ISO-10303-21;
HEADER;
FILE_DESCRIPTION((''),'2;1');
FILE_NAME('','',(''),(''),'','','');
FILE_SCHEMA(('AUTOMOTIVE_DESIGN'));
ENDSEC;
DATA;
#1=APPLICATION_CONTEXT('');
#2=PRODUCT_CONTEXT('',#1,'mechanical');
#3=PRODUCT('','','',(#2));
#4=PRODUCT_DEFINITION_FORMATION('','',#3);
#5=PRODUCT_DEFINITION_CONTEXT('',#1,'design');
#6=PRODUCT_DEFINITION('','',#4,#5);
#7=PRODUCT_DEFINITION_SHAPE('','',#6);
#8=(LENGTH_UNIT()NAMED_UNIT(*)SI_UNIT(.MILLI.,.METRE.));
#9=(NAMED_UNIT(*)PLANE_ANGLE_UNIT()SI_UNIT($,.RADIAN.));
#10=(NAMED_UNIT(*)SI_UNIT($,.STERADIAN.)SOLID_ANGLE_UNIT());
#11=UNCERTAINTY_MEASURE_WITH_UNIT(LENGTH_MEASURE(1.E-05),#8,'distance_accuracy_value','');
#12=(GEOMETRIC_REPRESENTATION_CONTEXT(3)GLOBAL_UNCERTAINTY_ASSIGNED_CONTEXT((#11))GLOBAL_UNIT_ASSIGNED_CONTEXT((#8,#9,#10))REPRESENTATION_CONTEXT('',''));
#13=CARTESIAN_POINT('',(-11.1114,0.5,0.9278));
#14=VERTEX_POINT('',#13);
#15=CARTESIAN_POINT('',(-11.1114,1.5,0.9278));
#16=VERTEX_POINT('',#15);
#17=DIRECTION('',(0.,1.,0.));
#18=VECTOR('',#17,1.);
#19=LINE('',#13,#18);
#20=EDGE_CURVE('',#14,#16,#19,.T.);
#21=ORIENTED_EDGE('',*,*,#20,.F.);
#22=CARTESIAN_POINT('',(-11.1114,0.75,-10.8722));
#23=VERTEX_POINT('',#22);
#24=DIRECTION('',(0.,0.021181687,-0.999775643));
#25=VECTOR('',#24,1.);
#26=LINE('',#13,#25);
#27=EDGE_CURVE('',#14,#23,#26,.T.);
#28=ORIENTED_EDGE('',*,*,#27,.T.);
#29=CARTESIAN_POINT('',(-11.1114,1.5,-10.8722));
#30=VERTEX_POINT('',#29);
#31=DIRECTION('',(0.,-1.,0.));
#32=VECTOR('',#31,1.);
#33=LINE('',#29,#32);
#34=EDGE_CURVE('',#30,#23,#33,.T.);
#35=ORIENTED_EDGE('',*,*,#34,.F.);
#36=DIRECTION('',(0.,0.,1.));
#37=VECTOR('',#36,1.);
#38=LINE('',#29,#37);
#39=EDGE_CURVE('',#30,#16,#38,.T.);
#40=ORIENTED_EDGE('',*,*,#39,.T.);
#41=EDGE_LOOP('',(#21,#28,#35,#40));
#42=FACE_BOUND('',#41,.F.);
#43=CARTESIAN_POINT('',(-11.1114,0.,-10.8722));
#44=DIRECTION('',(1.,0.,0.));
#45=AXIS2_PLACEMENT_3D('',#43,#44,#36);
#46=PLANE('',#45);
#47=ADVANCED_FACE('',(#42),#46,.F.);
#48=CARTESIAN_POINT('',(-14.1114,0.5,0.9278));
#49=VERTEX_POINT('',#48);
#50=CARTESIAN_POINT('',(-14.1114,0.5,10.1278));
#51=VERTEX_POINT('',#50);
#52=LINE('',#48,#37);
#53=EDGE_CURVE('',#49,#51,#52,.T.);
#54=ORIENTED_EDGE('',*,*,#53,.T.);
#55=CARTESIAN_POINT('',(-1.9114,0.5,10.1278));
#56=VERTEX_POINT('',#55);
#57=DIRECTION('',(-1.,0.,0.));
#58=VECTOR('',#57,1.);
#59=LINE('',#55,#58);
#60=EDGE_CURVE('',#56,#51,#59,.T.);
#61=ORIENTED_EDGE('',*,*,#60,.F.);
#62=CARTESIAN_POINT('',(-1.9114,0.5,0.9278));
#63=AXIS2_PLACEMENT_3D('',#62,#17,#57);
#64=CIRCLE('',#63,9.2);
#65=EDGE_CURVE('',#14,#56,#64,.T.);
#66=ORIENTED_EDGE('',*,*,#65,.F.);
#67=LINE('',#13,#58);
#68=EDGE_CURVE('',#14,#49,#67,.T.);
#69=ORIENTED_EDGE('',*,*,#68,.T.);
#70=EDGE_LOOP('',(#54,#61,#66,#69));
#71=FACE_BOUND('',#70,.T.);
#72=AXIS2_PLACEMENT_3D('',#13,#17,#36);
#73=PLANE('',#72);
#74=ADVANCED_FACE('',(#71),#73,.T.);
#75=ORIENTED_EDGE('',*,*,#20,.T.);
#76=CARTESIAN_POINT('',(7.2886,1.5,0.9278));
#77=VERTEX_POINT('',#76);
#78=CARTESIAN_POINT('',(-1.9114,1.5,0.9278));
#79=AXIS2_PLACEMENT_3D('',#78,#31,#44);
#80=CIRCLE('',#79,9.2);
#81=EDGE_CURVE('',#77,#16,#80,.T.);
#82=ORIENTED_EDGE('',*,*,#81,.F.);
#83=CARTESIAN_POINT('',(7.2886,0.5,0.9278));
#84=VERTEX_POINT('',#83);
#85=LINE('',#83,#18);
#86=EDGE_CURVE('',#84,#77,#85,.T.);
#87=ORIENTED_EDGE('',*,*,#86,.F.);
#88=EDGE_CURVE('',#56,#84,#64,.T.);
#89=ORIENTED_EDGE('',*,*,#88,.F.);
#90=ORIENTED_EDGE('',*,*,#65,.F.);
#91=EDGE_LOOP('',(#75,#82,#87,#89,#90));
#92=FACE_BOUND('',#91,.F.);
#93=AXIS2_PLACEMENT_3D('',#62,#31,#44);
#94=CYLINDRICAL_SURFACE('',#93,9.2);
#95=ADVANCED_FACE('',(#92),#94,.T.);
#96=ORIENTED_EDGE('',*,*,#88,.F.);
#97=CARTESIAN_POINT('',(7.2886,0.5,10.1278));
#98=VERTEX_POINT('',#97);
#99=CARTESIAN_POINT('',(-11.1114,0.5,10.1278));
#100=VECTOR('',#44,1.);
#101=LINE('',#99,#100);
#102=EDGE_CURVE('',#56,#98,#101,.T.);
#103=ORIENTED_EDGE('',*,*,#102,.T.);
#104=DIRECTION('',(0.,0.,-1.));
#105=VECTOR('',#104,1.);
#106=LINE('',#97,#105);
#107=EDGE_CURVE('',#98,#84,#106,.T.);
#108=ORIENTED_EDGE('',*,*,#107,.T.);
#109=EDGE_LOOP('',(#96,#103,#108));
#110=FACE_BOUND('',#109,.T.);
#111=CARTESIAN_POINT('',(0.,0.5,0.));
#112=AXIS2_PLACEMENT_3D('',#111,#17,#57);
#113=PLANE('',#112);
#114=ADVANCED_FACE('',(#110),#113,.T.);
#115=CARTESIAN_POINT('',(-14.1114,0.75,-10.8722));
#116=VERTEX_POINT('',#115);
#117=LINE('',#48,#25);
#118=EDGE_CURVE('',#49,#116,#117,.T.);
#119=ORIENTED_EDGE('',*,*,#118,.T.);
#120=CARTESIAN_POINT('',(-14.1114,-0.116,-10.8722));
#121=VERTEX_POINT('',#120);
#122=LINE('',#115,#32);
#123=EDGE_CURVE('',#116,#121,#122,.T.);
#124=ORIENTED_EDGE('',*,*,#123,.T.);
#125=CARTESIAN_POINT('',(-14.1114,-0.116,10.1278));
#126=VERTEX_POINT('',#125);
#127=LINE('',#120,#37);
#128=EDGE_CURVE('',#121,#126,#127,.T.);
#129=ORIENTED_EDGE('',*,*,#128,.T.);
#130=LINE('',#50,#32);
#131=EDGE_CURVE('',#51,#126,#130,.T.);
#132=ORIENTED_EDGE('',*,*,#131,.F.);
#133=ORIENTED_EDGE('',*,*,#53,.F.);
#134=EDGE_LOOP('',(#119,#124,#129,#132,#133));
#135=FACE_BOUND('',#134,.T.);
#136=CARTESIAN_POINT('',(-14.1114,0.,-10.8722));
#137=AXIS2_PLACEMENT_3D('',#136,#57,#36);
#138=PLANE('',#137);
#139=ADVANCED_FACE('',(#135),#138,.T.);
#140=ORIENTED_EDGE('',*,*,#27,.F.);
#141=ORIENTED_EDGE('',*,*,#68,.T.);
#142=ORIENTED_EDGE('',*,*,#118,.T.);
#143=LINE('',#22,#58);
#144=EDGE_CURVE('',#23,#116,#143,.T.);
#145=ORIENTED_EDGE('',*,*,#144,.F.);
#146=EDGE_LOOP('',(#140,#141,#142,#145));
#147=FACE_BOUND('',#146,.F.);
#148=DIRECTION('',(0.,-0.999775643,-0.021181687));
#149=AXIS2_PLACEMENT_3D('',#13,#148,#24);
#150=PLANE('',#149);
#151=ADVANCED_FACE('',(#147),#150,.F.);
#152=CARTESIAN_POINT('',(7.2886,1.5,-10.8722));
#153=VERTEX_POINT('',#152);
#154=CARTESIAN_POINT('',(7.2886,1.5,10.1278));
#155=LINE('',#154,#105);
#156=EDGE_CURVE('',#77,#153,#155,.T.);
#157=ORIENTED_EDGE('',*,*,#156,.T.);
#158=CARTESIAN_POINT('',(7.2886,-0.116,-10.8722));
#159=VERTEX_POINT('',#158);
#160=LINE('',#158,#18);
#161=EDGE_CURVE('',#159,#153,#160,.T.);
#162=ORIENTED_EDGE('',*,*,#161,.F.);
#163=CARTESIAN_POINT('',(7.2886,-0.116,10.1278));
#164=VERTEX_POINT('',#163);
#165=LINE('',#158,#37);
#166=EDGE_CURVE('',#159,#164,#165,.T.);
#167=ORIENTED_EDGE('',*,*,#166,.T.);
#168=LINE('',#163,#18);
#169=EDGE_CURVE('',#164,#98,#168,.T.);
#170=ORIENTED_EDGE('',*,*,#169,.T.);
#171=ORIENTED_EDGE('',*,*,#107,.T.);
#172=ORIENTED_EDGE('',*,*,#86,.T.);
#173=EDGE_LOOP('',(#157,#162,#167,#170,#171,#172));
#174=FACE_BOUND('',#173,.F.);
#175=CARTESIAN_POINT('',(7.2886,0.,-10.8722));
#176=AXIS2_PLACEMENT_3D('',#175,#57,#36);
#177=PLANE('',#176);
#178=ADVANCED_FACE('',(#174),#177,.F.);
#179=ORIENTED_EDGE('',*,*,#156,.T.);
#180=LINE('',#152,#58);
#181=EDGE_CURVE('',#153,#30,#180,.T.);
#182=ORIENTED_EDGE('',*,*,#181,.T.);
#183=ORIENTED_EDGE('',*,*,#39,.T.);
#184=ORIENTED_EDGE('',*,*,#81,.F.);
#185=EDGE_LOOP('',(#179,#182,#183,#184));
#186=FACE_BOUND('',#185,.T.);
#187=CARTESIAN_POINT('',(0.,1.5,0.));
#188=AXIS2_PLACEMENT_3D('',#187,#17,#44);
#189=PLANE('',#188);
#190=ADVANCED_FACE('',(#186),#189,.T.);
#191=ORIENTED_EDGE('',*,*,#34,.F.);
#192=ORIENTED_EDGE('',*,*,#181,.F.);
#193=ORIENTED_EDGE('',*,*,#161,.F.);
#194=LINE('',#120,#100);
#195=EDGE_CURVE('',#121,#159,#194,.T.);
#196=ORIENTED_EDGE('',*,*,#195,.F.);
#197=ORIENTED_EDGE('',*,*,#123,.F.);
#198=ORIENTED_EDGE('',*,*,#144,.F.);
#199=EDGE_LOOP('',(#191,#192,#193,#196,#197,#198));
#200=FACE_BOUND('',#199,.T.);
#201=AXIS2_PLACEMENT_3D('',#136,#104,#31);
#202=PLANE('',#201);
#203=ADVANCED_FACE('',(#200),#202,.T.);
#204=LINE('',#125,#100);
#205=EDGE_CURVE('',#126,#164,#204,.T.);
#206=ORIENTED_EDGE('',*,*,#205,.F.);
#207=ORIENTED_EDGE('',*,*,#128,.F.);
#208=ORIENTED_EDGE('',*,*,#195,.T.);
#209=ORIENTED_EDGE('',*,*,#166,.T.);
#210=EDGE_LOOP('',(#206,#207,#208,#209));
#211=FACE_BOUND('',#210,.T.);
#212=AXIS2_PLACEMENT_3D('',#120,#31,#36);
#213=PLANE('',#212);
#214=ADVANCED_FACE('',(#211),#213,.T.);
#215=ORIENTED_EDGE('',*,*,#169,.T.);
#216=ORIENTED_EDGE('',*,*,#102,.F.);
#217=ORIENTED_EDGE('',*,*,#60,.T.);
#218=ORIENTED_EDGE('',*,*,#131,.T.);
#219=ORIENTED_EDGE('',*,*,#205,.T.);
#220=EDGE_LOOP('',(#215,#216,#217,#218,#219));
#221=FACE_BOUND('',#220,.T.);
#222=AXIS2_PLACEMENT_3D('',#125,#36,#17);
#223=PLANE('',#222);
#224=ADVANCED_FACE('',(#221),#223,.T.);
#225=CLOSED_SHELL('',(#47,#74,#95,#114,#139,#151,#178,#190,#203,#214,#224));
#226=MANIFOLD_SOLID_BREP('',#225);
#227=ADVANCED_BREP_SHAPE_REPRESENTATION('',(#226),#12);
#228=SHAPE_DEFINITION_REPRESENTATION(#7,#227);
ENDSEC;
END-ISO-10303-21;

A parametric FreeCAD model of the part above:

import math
import FreeCAD as App
import Part
import Sketcher
from FreeCAD import Vector

doc = App.newDocument("Part")
body = doc.addObject("PartDesign::Body", "Body")

# Sketch on XZ plane
sketch1 = body.newObject("Sketcher::SketchObject", "Sketch")
sketch1.AttachmentSupport = (doc.getObject("XZ_Plane"), [""])
sketch1.MapMode = "FlatFace"
sketch1.addGeometry(Part.LineSegment(Vector(-11, -11, 0), Vector(-11, 10, 0)), False)
sketch1.addGeometry(Part.LineSegment(Vector(-11, 10, 0), Vector(7, 10, 0)), False)
sketch1.addGeometry(Part.LineSegment(Vector(7, 10, 0), Vector(7, -11, 0)), False)
sketch1.addGeometry(Part.LineSegment(Vector(7, -11, 0), Vector(-11, -11, 0)), False)
sketch1.addConstraint(Sketcher.Constraint("Coincident", 0, 2, 1, 1))
sketch1.addConstraint(Sketcher.Constraint("Coincident", 1, 2, 2, 1))
sketch1.addConstraint(Sketcher.Constraint("Coincident", 2, 2, 3, 1))
sketch1.addConstraint(Sketcher.Constraint("Coincident", 3, 2, 0, 1))
sketch1.addConstraint(Sketcher.Constraint("Vertical", 0))
sketch1.addConstraint(Sketcher.Constraint("Horizontal", 1))
sketch1.addConstraint(Sketcher.Constraint("Vertical", 2))
sketch1.addConstraint(Sketcher.Constraint("Horizontal", 3))
sketch1.addConstraint(Sketcher.Constraint("DistanceY", 0, 1, 0, 2, 21.0))
sketch1.addConstraint(Sketcher.Constraint("DistanceX", 1, 1, 1, 2, 18.4))
sketch1.addConstraint(Sketcher.Constraint("DistanceX", 0, 2, -1, 1, 11.1114))
sketch1.addConstraint(Sketcher.Constraint("DistanceY", -1, 1, 0, 2, 10.1278))
pad1 = body.newObject("PartDesign::Pad", "Pad")
pad1.Profile = sketch1
pad1.Length = 0.5
pad1.Reversed = True

# Sketch on XZ plane
sketch2 = body.newObject("Sketcher::SketchObject", "Sketch001")
sketch2.AttachmentSupport = (doc.getObject("XZ_Plane"), [""])
sketch2.MapMode = "FlatFace"
sketch2.AttachmentOffset = App.Placement(Vector(0, 0, -0.5), App.Rotation())
sketch2.addGeometry(Part.LineSegment(Vector(7, 1, 0), Vector(7, -11, 0)), False)
sketch2.addGeometry(Part.LineSegment(Vector(7, -11, 0), Vector(-11, -11, 0)), False)
sketch2.addGeometry(Part.LineSegment(Vector(-11, -11, 0), Vector(-11, 1, 0)), False)
sketch2.addGeometry(Part.ArcOfCircle(Part.Circle(Vector(-2, 1, 0), Vector(0, 0, 1), 9), math.radians(0), math.radians(180)), False)
sketch2.addConstraint(Sketcher.Constraint("Coincident", 0, 2, 1, 1))
sketch2.addConstraint(Sketcher.Constraint("Coincident", 1, 2, 2, 1))
sketch2.addConstraint(Sketcher.Constraint("Tangent", 2, 2, 3, 2))
sketch2.addConstraint(Sketcher.Constraint("Tangent", 3, 1, 0, 1))
sketch2.addConstraint(Sketcher.Constraint("Vertical", 0))
sketch2.addConstraint(Sketcher.Constraint("Horizontal", 1))
sketch2.addConstraint(Sketcher.Constraint("Vertical", 2))
sketch2.addConstraint(Sketcher.Constraint("Radius", 3, 9.2))
sketch2.addConstraint(Sketcher.Constraint("DistanceY", 0, 2, 0, 1, 11.8))
sketch2.addConstraint(Sketcher.Constraint("DistanceX", 3, 3, -1, 1, 1.9114))
sketch2.addConstraint(Sketcher.Constraint("DistanceY", -1, 1, 3, 3, 0.9278))
pad2 = body.newObject("PartDesign::Pad", "Pad001")
pad2.Profile = sketch2
pad2.Length = 1
pad2.Reversed = True

# Sketch on YZ plane
sketch3 = body.newObject("Sketcher::SketchObject", "Sketch002")
sketch3.AttachmentSupport = (doc.getObject("YZ_Plane"), [""])
sketch3.MapMode = "FlatFace"
sketch3.AttachmentOffset = App.Placement(Vector(0, 0, -11.1114), App.Rotation())
sketch3.addGeometry(Part.LineSegment(Vector(0.8, -10.9, 0), Vector(0, -10.9, 0)), False)
sketch3.addGeometry(Part.LineSegment(Vector(0, -10.9, 0), Vector(0, 10.1, 0)), False)
sketch3.addGeometry(Part.LineSegment(Vector(0, 10.1, 0), Vector(0.5, 10.1, 0)), False)
sketch3.addGeometry(Part.LineSegment(Vector(0.5, 10.1, 0), Vector(0.5, 0.9, 0)), False)
sketch3.addGeometry(Part.LineSegment(Vector(0.5, 0.9, 0), Vector(0.8, -10.9, 0)), False)
sketch3.addConstraint(Sketcher.Constraint("Coincident", 0, 2, 1, 1))
sketch3.addConstraint(Sketcher.Constraint("Coincident", 1, 2, 2, 1))
sketch3.addConstraint(Sketcher.Constraint("Coincident", 2, 2, 3, 1))
sketch3.addConstraint(Sketcher.Constraint("Coincident", 3, 2, 4, 1))
sketch3.addConstraint(Sketcher.Constraint("Coincident", 4, 2, 0, 1))
sketch3.addConstraint(Sketcher.Constraint("Horizontal", 0))
sketch3.addConstraint(Sketcher.Constraint("Vertical", 1))
sketch3.addConstraint(Sketcher.Constraint("Horizontal", 2))
sketch3.addConstraint(Sketcher.Constraint("Vertical", 3))
sketch3.addConstraint(Sketcher.Constraint("PointOnObject", 0, 2, -2))
sketch3.addConstraint(Sketcher.Constraint("DistanceY", 1, 1, 1, 2, 21.0))
sketch3.addConstraint(Sketcher.Constraint("DistanceX", 2, 1, 2, 2, 0.5))
sketch3.addConstraint(Sketcher.Constraint("DistanceY", 3, 2, 3, 1, 9.2))
sketch3.addConstraint(Sketcher.Constraint("DistanceX", 0, 2, 0, 1, 0.75))
sketch3.addConstraint(Sketcher.Constraint("DistanceY", 0, 2, -1, 1, 10.8722))
pad3 = body.newObject("PartDesign::Pad", "Pad002")
pad3.Profile = sketch3
pad3.Length = 3
pad3.Reversed = True

# Sketch on YZ plane
sketch4 = body.newObject("Sketcher::SketchObject", "Sketch003")
sketch4.AttachmentSupport = (doc.getObject("YZ_Plane"), [""])
sketch4.MapMode = "FlatFace"
sketch4.AttachmentOffset = App.Placement(Vector(0, 0, -14.1114), App.Rotation())
sketch4.addGeometry(Part.LineSegment(Vector(0, 10.13, 0), Vector(0, -10.87, 0)), False)
sketch4.addGeometry(Part.LineSegment(Vector(0, -10.87, 0), Vector(-0.12, -10.87, 0)), False)
sketch4.addGeometry(Part.LineSegment(Vector(-0.12, -10.87, 0), Vector(-0.12, 10.13, 0)), False)
sketch4.addGeometry(Part.LineSegment(Vector(-0.12, 10.13, 0), Vector(0, 10.13, 0)), False)
sketch4.addConstraint(Sketcher.Constraint("Coincident", 0, 2, 1, 1))
sketch4.addConstraint(Sketcher.Constraint("Coincident", 1, 2, 2, 1))
sketch4.addConstraint(Sketcher.Constraint("Coincident", 2, 2, 3, 1))
sketch4.addConstraint(Sketcher.Constraint("Coincident", 3, 2, 0, 1))
sketch4.addConstraint(Sketcher.Constraint("Vertical", 0))
sketch4.addConstraint(Sketcher.Constraint("Horizontal", 1))
sketch4.addConstraint(Sketcher.Constraint("Vertical", 2))
sketch4.addConstraint(Sketcher.Constraint("Horizontal", 3))
sketch4.addConstraint(Sketcher.Constraint("PointOnObject", 0, 2, -2))
sketch4.addConstraint(Sketcher.Constraint("DistanceY", 0, 2, 0, 1, 21.0))
sketch4.addConstraint(Sketcher.Constraint("DistanceX", 1, 2, 1, 1, 0.116))
sketch4.addConstraint(Sketcher.Constraint("DistanceY", 0, 2, -1, 1, 10.8722))
pad4 = body.newObject("PartDesign::Pad", "Pad003")
pad4.Profile = sketch4
pad4.Length = 21.4

doc.recompute()
